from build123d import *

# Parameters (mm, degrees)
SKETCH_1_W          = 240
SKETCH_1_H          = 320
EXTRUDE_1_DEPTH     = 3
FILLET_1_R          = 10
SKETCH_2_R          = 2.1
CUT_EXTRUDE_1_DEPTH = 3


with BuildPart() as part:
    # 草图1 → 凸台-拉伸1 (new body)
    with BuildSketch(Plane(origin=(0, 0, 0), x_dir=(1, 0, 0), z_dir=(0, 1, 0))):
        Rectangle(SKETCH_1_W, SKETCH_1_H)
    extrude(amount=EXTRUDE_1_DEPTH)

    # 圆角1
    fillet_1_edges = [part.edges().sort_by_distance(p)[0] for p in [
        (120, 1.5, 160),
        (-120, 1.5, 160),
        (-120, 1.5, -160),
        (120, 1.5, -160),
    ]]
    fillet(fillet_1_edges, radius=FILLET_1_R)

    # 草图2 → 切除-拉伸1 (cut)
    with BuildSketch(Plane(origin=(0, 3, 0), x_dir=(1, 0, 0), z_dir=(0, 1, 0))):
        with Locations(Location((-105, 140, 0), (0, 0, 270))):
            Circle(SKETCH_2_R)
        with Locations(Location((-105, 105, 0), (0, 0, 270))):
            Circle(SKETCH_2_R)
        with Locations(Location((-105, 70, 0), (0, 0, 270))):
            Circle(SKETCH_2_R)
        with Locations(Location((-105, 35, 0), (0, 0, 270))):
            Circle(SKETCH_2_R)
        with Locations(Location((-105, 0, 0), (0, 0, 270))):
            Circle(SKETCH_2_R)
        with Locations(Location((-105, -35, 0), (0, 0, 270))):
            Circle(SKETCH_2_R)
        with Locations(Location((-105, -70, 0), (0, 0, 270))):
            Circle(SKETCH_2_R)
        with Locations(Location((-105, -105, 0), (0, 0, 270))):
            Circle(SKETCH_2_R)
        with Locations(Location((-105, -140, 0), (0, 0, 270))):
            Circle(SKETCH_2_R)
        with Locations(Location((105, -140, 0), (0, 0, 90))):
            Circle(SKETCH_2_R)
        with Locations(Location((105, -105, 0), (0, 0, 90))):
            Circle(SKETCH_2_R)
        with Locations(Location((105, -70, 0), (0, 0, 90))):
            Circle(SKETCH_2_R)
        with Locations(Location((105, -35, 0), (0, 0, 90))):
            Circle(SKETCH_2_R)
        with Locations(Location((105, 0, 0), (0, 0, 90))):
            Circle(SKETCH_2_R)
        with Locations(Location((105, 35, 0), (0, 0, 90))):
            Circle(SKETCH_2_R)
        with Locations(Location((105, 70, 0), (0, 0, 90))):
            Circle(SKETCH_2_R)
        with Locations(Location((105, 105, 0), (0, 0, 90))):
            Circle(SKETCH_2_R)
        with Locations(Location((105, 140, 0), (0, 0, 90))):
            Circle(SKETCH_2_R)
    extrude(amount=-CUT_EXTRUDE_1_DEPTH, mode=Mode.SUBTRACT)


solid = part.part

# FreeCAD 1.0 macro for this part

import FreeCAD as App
import Part
import Sketcher
from FreeCAD import Vector


def edges_at(feature, points):
    """Names of the edges that pass closest to the given points."""
    edges = feature.Shape.Edges
    near = lambda p: min(range(len(edges)), key=lambda i: edges[i].distToShape(Part.Vertex(*p))[0])
    return sorted({f"Edge{near(p) + 1}" for p in points})


def add_polygon(sketch, points):
    """Adds a closed chain of lines whose ends are joined by coincident constraints."""
    first, n = sketch.GeometryCount, len(points)
    for a, b in zip(points, points[1:] + points[:1]):
        sketch.addGeometry(Part.LineSegment(App.Vector(*a, 0), App.Vector(*b, 0)), False)
    for i in range(n):
        sketch.addConstraint(Sketcher.Constraint("Coincident", first + i, 2, first + (i + 1) % n, 1))

doc = App.newDocument("Part")
body = doc.addObject("PartDesign::Body", "Body")

# Sketch on XZ plane
sketch1 = body.newObject("Sketcher::SketchObject", "Sketch")
sketch1.AttachmentSupport = (doc.getObject("XZ_Plane"), [""])
sketch1.MapMode = "FlatFace"
add_polygon(sketch1, [(-120, -160), (-120, 160), (120, 160), (120, -160)])  # lines 0-3
sketch1.addConstraint([
    Sketcher.Constraint("Vertical", 0),
    Sketcher.Constraint("Horizontal", 1),
    Sketcher.Constraint("Vertical", 2),
    Sketcher.Constraint("Horizontal", 3),
    Sketcher.Constraint("Symmetric", 0, 2, 2, 2, -1, 1),
    Sketcher.Constraint("DistanceX", 1, 1, 1, 2, 240.0),
    Sketcher.Constraint("DistanceY", 0, 1, 0, 2, 320.0),
])
pad1 = body.newObject("PartDesign::Pad", "Pad")
pad1.Profile = sketch1
pad1.Length = 3
pad1.Reversed = True
doc.recompute()

fillet = body.newObject("PartDesign::Fillet", "Fillet")
fillet.Base = (pad1, edges_at(pad1, [
    (120, 1.5, 160),
    (-120, 1.5, 160),
    (-120, 1.5, -160),
    (120, 1.5, -160),
]))
fillet.Radius = 10

# Sketch on XZ plane
sketch2 = body.newObject("Sketcher::SketchObject", "Sketch001")
sketch2.AttachmentSupport = (doc.getObject("XZ_Plane"), [""])
sketch2.MapMode = "FlatFace"
sketch2.AttachmentOffset = App.Placement(Vector(0, 0, -3), App.Rotation())
sketch2.addGeometry([
    Part.Circle(Vector(-105, -140, 0), Vector(0, 0, 1), 2.1),  # 0
    Part.Circle(Vector(-105, -105, 0), Vector(0, 0, 1), 2.1),  # 1
    Part.Circle(Vector(-105, -70, 0), Vector(0, 0, 1), 2.1),  # 2
    Part.Circle(Vector(-105, -35, 0), Vector(0, 0, 1), 2.1),  # 3
    Part.Circle(Vector(-105, 0, 0), Vector(0, 0, 1), 2.1),  # 4
    Part.Circle(Vector(-105, 35, 0), Vector(0, 0, 1), 2.1),  # 5
    Part.Circle(Vector(-105, 70, 0), Vector(0, 0, 1), 2.1),  # 6
    Part.Circle(Vector(-105, 105, 0), Vector(0, 0, 1), 2.1),  # 7
    Part.Circle(Vector(-105, 140, 0), Vector(0, 0, 1), 2.1),  # 8
    Part.Circle(Vector(105, 140, 0), Vector(0, 0, 1), 2.1),  # 9
    Part.Circle(Vector(105, 105, 0), Vector(0, 0, 1), 2.1),  # 10
    Part.Circle(Vector(105, 70, 0), Vector(0, 0, 1), 2.1),  # 11
    Part.Circle(Vector(105, 35, 0), Vector(0, 0, 1), 2.1),  # 12
    Part.Circle(Vector(105, 0, 0), Vector(0, 0, 1), 2.1),  # 13
    Part.Circle(Vector(105, -35, 0), Vector(0, 0, 1), 2.1),  # 14
    Part.Circle(Vector(105, -70, 0), Vector(0, 0, 1), 2.1),  # 15
    Part.Circle(Vector(105, -105, 0), Vector(0, 0, 1), 2.1),  # 16
    Part.Circle(Vector(105, -140, 0), Vector(0, 0, 1), 2.1),  # 17
], False)
sketch2.addConstraint([
    Sketcher.Constraint("Equal", 0, 1),
    Sketcher.Constraint("Equal", 1, 2),
    Sketcher.Constraint("Equal", 2, 3),
    Sketcher.Constraint("Equal", 3, 4),
    Sketcher.Constraint("Equal", 4, 5),
    Sketcher.Constraint("Equal", 5, 6),
    Sketcher.Constraint("Equal", 6, 7),
    Sketcher.Constraint("Equal", 7, 8),
    Sketcher.Constraint("Equal", 8, 9),
    Sketcher.Constraint("Equal", 9, 10),
    Sketcher.Constraint("Equal", 10, 11),
    Sketcher.Constraint("Equal", 11, 12),
    Sketcher.Constraint("Equal", 12, 13),
    Sketcher.Constraint("Equal", 13, 14),
    Sketcher.Constraint("Equal", 14, 15),
    Sketcher.Constraint("Equal", 15, 16),
    Sketcher.Constraint("Equal", 16, 17),
    Sketcher.Constraint("Symmetric", 0, 3, 9, 3, -1, 1),
    Sketcher.Constraint("Symmetric", 1, 3, 10, 3, -1, 1),
    Sketcher.Constraint("Symmetric", 2, 3, 11, 3, -1, 1),
    Sketcher.Constraint("Symmetric", 3, 3, 12, 3, -1, 1),
    Sketcher.Constraint("Symmetric", 4, 3, 13, 3, -1, 1),
    Sketcher.Constraint("Symmetric", 5, 3, 14, 3, -1, 1),
    Sketcher.Constraint("Symmetric", 6, 3, 15, 3, -1, 1),
    Sketcher.Constraint("Symmetric", 7, 3, 16, 3, -1, 1),
    Sketcher.Constraint("Symmetric", 8, 3, 17, 3, -1, 1),
    Sketcher.Constraint("Symmetric", 8, 3, 9, 3, -2),
    Sketcher.Constraint("Symmetric", 7, 3, 10, 3, -2),
    Sketcher.Constraint("Symmetric", 6, 3, 11, 3, -2),
    Sketcher.Constraint("Symmetric", 5, 3, 12, 3, -2),
    Sketcher.Constraint("PointOnObject", 4, 3, -1),
    Sketcher.Constraint("Vertical", 0, 3, 1, 3),
    Sketcher.Constraint("Vertical", 1, 3, 2, 3),
    Sketcher.Constraint("Vertical", 2, 3, 3, 3),
    Sketcher.Constraint("Vertical", 3, 3, 4, 3),
    Sketcher.Constraint("Diameter", 0, 4.2),
    Sketcher.Constraint("DistanceX", 0, 3, -1, 1, 105.0),
    Sketcher.Constraint("DistanceY", 0, 3, -1, 1, 140.0),
    Sketcher.Constraint("DistanceY", 1, 3, -1, 1, 105.0),
    Sketcher.Constraint("DistanceY", 2, 3, -1, 1, 70.0),
    Sketcher.Constraint("DistanceY", 3, 3, -1, 1, 35.0),
])
pocket1 = body.newObject("PartDesign::Pocket", "Pocket")
pocket1.Profile = sketch2
pocket1.Length = 3
pocket1.Reversed = True

doc.recompute()
